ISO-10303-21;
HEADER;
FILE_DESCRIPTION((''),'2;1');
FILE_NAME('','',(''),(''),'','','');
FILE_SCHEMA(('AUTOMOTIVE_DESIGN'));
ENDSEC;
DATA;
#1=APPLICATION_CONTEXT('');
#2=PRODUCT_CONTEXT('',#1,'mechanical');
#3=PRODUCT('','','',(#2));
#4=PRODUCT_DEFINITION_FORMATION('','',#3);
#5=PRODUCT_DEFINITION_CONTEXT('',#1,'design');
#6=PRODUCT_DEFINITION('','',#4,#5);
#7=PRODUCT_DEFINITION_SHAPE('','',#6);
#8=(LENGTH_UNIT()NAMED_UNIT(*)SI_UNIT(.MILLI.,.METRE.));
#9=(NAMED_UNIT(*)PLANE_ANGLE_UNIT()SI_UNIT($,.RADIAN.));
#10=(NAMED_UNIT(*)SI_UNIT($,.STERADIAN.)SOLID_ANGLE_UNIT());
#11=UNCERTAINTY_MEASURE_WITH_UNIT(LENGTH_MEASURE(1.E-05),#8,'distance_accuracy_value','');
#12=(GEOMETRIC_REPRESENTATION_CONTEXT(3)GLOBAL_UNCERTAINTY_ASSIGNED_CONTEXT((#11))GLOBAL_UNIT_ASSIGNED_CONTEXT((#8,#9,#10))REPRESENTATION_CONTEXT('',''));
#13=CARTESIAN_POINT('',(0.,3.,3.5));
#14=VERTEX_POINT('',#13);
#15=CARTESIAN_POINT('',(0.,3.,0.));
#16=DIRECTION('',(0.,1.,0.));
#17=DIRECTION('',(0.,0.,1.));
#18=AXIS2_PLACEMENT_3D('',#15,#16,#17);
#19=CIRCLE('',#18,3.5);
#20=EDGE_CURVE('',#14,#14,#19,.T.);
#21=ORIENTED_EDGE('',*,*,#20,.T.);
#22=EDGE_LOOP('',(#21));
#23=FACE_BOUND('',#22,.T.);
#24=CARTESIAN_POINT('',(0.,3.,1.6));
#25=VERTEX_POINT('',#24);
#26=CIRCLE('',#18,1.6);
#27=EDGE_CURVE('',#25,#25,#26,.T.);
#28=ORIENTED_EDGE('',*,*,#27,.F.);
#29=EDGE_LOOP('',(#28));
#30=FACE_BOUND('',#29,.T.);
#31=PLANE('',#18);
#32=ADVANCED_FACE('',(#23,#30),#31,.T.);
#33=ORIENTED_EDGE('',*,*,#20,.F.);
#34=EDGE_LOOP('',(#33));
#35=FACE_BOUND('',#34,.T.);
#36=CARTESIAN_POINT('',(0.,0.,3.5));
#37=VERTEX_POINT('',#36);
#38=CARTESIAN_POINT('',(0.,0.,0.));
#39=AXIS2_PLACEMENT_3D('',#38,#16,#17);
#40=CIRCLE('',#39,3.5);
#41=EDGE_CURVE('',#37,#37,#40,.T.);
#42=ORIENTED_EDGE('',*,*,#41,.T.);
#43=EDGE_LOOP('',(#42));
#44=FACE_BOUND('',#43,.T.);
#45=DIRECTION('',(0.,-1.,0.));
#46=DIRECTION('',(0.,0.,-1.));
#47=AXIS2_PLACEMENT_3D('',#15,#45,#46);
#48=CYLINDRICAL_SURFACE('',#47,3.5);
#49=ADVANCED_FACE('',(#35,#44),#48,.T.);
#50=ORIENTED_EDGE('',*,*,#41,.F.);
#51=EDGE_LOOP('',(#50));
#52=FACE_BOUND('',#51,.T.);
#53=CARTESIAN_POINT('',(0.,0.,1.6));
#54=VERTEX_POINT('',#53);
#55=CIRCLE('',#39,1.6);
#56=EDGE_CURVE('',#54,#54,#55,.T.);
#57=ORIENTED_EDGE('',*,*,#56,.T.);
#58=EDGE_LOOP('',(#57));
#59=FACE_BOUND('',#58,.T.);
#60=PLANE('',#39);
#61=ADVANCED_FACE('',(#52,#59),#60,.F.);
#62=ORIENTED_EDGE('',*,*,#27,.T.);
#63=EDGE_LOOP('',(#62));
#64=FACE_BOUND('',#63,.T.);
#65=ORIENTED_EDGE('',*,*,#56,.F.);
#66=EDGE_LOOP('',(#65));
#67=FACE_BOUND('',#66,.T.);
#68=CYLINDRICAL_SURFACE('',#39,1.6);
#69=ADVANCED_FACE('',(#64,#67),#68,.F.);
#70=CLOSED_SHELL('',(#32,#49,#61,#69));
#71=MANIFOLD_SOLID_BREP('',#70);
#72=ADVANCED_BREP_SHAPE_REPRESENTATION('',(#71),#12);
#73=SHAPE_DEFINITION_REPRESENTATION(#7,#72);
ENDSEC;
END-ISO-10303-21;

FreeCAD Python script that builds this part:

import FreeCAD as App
import Part
import Sketcher
from FreeCAD import Vector

doc = App.newDocument("Part")
body = doc.addObject("PartDesign::Body", "Body")

sketch1 = body.newObject("Sketcher::SketchObject", "Sketch")
sketch1.AttachmentSupport = (doc.getObject("XZ_Plane"), [""])
sketch1.MapMode = "FlatFace"
sketch1.addGeometry(Part.Circle(Vector(0, 0, 0), Vector(0, 0, 1), 3.5), False)
sketch1.addConstraint(Sketcher.Constraint("Coincident", 0, 3, -1, 1))
sketch1.addConstraint(Sketcher.Constraint("Diameter", 0, 7.0))
pad1 = body.newObject("PartDesign::Pad", "Pad")
pad1.Profile = sketch1
pad1.Length = 3
pad1.Reversed = True

sketch2 = body.newObject("Sketcher::SketchObject", "Sketch001")
sketch2.AttachmentSupport = (doc.getObject("XZ_Plane"), [""])
sketch2.MapMode = "FlatFace"
sketch2.AttachmentOffset = App.Placement(Vector(0, 0, -3), App.Rotation())
sketch2.addGeometry(Part.Circle(Vector(0, 0, 0), Vector(0, 0, 1), 1.6), False)
sketch2.addConstraint(Sketcher.Constraint("Coincident", 0, 3, -1, 1))
sketch2.addConstraint(Sketcher.Constraint("Diameter", 0, 3.2))
pocket1 = body.newObject("PartDesign::Pocket", "Pocket")
pocket1.Profile = sketch2
pocket1.Length = 3
pocket1.Reversed = True

doc.recompute()
